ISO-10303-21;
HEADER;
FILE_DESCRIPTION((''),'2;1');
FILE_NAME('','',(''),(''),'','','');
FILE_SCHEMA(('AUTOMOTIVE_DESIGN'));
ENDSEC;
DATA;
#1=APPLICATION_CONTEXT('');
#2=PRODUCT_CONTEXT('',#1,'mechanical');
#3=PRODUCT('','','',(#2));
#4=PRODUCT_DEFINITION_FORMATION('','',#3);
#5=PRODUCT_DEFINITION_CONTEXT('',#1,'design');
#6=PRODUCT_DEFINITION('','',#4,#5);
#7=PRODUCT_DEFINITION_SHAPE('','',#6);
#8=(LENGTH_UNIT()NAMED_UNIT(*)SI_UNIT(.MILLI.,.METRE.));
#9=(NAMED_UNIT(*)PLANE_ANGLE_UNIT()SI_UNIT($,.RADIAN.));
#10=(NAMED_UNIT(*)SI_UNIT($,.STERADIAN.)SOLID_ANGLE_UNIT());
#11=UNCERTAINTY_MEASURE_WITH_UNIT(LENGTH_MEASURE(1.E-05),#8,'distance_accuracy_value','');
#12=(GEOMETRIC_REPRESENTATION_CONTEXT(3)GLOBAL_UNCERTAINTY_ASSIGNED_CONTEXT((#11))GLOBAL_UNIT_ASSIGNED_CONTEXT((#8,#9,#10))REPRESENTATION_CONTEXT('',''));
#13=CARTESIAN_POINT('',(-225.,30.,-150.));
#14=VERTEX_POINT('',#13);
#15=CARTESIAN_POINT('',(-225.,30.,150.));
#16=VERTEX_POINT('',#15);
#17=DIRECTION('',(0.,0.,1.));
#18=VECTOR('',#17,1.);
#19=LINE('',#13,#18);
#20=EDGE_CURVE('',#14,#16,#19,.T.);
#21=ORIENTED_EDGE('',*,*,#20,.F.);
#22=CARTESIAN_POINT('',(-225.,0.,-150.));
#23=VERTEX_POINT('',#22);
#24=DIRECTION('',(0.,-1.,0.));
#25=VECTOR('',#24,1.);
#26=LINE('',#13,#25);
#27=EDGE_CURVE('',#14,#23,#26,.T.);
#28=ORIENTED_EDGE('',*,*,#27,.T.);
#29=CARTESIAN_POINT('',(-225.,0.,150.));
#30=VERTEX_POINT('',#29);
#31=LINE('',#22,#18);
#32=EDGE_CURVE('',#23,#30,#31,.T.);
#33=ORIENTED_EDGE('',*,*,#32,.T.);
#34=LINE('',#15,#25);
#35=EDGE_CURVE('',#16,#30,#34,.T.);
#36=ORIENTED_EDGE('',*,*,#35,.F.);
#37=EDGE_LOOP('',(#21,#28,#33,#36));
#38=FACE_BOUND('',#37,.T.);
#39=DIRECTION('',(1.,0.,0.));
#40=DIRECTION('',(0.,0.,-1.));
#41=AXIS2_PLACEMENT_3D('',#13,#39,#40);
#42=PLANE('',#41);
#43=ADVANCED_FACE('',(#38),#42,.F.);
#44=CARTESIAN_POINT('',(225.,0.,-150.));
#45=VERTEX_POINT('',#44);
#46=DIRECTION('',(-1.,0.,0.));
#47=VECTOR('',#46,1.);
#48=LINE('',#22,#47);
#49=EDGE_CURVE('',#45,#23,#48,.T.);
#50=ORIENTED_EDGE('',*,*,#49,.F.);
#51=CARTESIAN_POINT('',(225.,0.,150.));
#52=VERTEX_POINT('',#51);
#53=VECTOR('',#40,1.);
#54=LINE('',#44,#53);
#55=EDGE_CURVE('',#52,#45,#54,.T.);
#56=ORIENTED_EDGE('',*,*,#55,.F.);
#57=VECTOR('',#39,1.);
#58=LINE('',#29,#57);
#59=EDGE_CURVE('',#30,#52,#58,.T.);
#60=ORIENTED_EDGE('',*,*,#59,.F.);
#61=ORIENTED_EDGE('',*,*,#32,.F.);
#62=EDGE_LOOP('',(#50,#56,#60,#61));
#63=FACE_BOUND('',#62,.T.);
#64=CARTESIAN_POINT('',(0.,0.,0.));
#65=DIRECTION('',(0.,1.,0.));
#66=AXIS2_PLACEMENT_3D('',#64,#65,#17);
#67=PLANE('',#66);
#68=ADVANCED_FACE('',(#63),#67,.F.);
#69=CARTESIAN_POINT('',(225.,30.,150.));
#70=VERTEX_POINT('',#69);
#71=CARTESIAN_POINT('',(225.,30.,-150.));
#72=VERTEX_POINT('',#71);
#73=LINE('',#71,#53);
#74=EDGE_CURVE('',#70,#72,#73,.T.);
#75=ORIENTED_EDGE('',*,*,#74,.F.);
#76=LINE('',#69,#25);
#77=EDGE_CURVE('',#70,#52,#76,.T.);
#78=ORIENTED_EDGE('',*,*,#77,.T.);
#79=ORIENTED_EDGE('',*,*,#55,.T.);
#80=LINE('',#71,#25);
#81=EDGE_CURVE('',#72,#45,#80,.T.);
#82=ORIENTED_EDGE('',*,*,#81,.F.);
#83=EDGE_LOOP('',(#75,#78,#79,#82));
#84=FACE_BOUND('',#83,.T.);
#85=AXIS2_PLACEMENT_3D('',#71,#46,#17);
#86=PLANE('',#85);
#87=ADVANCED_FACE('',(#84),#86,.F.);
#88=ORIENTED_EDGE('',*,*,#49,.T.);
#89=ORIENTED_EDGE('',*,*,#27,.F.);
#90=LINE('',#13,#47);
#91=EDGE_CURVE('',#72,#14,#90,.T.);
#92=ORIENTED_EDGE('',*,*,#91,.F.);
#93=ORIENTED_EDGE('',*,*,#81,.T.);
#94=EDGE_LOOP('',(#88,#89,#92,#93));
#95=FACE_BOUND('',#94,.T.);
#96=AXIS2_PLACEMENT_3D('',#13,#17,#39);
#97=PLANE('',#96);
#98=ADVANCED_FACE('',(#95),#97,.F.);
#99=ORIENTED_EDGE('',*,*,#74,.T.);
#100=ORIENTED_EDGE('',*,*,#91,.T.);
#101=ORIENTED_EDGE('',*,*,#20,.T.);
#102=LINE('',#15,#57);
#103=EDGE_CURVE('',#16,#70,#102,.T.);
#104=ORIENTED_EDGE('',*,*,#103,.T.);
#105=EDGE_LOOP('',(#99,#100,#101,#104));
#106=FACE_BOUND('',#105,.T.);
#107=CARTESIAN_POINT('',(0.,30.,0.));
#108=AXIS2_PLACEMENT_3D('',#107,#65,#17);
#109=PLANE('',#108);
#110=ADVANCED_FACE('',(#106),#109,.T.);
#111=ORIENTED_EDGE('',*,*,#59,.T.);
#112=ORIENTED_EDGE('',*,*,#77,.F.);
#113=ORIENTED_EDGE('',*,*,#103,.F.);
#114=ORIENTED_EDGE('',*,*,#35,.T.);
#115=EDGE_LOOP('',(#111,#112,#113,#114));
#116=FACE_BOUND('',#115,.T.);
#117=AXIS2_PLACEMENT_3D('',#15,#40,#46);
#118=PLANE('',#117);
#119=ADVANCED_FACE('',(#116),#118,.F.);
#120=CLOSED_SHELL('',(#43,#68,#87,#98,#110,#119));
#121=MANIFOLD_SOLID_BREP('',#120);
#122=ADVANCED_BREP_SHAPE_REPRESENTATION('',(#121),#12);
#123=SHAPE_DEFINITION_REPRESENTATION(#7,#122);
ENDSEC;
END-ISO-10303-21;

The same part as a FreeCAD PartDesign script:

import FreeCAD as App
import Part
import Sketcher

V = App.Vector
Q = App.Units.Quantity


def add_polygon(sketch, points):
    """Adds a closed chain of lines whose ends are joined by coincident constraints."""
    first, n = sketch.GeometryCount, len(points)
    for a, b in zip(points, points[1:] + points[:1]):
        sketch.addGeometry(Part.LineSegment(App.Vector(*a, 0), App.Vector(*b, 0)), False)
    for i in range(n):
        sketch.addConstraint(Sketcher.Constraint("Coincident", first + i, 2, first + (i + 1) % n, 1))

doc = App.newDocument("Part")
body = doc.addObject("PartDesign::Body", "Body")

sketch1 = doc.addObject("Sketcher::SketchObject", "Sketch")
body.addObject(sketch1)
sketch1.AttachmentSupport = (doc.XZ_Plane, [""])
sketch1.MapMode = "FlatFace"
add_polygon(sketch1, [(-225, -150), (-225, 150), (225, 150), (225, -150)])
sketch1.addConstraint([
    Sketcher.Constraint("Vertical", 0),
    Sketcher.Constraint("Horizontal", 1),
    Sketcher.Constraint("Vertical", 2),
    Sketcher.Constraint("Horizontal", 3),
    Sketcher.Constraint("Symmetric", 0, 2, 2, 2, -1, 1),
    Sketcher.Constraint("DistanceX", 1, 1, 1, 2, Q("450 mm")),
    Sketcher.Constraint("DistanceY", 0, 1, 0, 2, Q("300 mm")),
])
pad1 = doc.addObject("PartDesign::Pad", "Pad")
body.addObject(pad1)
pad1.Profile = sketch1
pad1.Length = 30
pad1.Reversed = True

doc.recompute()
